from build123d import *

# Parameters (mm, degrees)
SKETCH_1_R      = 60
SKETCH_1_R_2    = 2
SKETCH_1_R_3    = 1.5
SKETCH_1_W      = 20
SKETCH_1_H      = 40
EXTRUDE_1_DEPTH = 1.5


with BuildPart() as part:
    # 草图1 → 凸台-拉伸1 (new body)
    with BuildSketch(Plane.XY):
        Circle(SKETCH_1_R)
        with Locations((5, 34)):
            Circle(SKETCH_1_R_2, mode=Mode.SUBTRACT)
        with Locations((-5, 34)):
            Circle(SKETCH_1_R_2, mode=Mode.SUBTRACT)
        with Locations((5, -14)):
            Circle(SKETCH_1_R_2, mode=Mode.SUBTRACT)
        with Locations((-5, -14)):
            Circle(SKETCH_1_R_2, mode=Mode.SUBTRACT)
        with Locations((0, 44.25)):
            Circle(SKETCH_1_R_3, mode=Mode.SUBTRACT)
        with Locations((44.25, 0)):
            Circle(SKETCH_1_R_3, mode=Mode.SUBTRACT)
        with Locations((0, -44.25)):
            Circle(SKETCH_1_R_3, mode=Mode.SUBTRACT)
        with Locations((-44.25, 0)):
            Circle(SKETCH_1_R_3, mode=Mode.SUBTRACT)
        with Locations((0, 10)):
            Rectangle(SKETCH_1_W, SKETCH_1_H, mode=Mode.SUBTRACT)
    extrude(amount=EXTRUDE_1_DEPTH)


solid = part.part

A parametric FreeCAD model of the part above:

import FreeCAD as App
import Part
import Sketcher

V = App.Vector


def add_polygon(sketch, points):
    """Adds a closed chain of lines whose ends are joined by coincident constraints."""
    first, n = sketch.GeometryCount, len(points)
    for a, b in zip(points, points[1:] + points[:1]):
        sketch.addGeometry(Part.LineSegment(App.Vector(*a, 0), App.Vector(*b, 0)), False)
    for i in range(n):
        sketch.addConstraint(Sketcher.Constraint("Coincident", first + i, 2, first + (i + 1) % n, 1))

doc = App.newDocument("Part")
body = doc.addObject("PartDesign::Body", "Body")

# Sketch on XY plane
sketch1 = doc.addObject("Sketcher::SketchObject", "Sketch")
body.addObject(sketch1)
sketch1.AttachmentSupport = (doc.XY_Plane, [""])
sketch1.MapMode = "FlatFace"
sketch1.addGeometry(Part.Circle(V(0, 0, 0), V(0, 0, 1), 60), False)  # 0
sketch1.addGeometry(Part.Circle(V(-5, -14, 0), V(0, 0, 1), 2), False)  # 1
sketch1.addGeometry(Part.Circle(V(0, -44.25, 0), V(0, 0, 1), 1.5), False)  # 2
sketch1.addGeometry(Part.Circle(V(5, -14, 0), V(0, 0, 1), 2), False)  # 3
sketch1.addGeometry(Part.Circle(V(-44.25, 0, 0), V(0, 0, 1), 1.5), False)  # 4
sketch1.addGeometry(Part.Circle(V(-5, 34, 0), V(0, 0, 1), 2), False)  # 5
add_polygon(sketch1, [(10, -10), (-10, -10), (-10, 30), (10, 30)])  # lines 6-9
sketch1.addGeometry(Part.Circle(V(44.25, 0, 0), V(0, 0, 1), 1.5), False)  # 10
sketch1.addGeometry(Part.Circle(V(5, 34, 0), V(0, 0, 1), 2), False)  # 11
sketch1.addGeometry(Part.Circle(V(0, 44.25, 0), V(0, 0, 1), 1.5), False)  # 12
sketch1.addConstraint(Sketcher.Constraint("Horizontal", 6))
sketch1.addConstraint(Sketcher.Constraint("Vertical", 7))
sketch1.addConstraint(Sketcher.Constraint("Horizontal", 8))
sketch1.addConstraint(Sketcher.Constraint("Vertical", 9))
sketch1.addConstraint(Sketcher.Constraint("Coincident", 0, 3, -1, 1))
sketch1.addConstraint(Sketcher.Constraint("Equal", 1, 3))
sketch1.addConstraint(Sketcher.Constraint("Equal", 2, 4))
sketch1.addConstraint(Sketcher.Constraint("Equal", 3, 5))
sketch1.addConstraint(Sketcher.Constraint("Equal", 4, 10))
sketch1.addConstraint(Sketcher.Constraint("Equal", 5, 11))
sketch1.addConstraint(Sketcher.Constraint("Equal", 10, 12))
sketch1.addConstraint(Sketcher.Constraint("Symmetric", 4, 3, 10, 3, -1, 1))
sketch1.addConstraint(Sketcher.Constraint("Symmetric", 2, 3, 12, 3, -1, 1))
sketch1.addConstraint(Sketcher.Constraint("Symmetric", 1, 3, 3, 3, -2))
sketch1.addConstraint(Sketcher.Constraint("Symmetric", 5, 3, 11, 3, -2))
sketch1.addConstraint(Sketcher.Constraint("PointOnObject", 2, 3, -2))
sketch1.addConstraint(Sketcher.Constraint("PointOnObject", 4, 3, -1))
sketch1.addConstraint(Sketcher.Constraint("Vertical", 1, 3, 5, 3))
sketch1.addConstraint(Sketcher.Constraint("Diameter", 0, 120.0))
sketch1.addConstraint(Sketcher.Constraint("Diameter", 1, 4.0))
sketch1.addConstraint(Sketcher.Constraint("Diameter", 2, 3.0))
sketch1.addConstraint(Sketcher.Constraint("DistanceX", 6, 2, 6, 1, 20.0))
sketch1.addConstraint(Sketcher.Constraint("DistanceY", 7, 1, 7, 2, 40.0))
sketch1.addConstraint(Sketcher.Constraint("DistanceX", 1, 3, -1, 1, 5.0))
sketch1.addConstraint(Sketcher.Constraint("DistanceY", 1, 3, -1, 1, 14.0))
sketch1.addConstraint(Sketcher.Constraint("DistanceY", -1, 1, 5, 3, 34.0))
sketch1.addConstraint(Sketcher.Constraint("DistanceX", 6, 2, -1, 1, 10.0))
sketch1.addConstraint(Sketcher.Constraint("DistanceY", 6, 2, -1, 1, 10.0))
sketch1.addConstraint(Sketcher.Constraint("DistanceY", 2, 3, -1, 1, 44.25))
sketch1.addConstraint(Sketcher.Constraint("DistanceX", 4, 3, -1, 1, 44.25))
pad1 = doc.addObject("PartDesign::Pad", "Pad")
body.addObject(pad1)
pad1.Profile = sketch1
pad1.Length = 1.5

doc.recompute()
